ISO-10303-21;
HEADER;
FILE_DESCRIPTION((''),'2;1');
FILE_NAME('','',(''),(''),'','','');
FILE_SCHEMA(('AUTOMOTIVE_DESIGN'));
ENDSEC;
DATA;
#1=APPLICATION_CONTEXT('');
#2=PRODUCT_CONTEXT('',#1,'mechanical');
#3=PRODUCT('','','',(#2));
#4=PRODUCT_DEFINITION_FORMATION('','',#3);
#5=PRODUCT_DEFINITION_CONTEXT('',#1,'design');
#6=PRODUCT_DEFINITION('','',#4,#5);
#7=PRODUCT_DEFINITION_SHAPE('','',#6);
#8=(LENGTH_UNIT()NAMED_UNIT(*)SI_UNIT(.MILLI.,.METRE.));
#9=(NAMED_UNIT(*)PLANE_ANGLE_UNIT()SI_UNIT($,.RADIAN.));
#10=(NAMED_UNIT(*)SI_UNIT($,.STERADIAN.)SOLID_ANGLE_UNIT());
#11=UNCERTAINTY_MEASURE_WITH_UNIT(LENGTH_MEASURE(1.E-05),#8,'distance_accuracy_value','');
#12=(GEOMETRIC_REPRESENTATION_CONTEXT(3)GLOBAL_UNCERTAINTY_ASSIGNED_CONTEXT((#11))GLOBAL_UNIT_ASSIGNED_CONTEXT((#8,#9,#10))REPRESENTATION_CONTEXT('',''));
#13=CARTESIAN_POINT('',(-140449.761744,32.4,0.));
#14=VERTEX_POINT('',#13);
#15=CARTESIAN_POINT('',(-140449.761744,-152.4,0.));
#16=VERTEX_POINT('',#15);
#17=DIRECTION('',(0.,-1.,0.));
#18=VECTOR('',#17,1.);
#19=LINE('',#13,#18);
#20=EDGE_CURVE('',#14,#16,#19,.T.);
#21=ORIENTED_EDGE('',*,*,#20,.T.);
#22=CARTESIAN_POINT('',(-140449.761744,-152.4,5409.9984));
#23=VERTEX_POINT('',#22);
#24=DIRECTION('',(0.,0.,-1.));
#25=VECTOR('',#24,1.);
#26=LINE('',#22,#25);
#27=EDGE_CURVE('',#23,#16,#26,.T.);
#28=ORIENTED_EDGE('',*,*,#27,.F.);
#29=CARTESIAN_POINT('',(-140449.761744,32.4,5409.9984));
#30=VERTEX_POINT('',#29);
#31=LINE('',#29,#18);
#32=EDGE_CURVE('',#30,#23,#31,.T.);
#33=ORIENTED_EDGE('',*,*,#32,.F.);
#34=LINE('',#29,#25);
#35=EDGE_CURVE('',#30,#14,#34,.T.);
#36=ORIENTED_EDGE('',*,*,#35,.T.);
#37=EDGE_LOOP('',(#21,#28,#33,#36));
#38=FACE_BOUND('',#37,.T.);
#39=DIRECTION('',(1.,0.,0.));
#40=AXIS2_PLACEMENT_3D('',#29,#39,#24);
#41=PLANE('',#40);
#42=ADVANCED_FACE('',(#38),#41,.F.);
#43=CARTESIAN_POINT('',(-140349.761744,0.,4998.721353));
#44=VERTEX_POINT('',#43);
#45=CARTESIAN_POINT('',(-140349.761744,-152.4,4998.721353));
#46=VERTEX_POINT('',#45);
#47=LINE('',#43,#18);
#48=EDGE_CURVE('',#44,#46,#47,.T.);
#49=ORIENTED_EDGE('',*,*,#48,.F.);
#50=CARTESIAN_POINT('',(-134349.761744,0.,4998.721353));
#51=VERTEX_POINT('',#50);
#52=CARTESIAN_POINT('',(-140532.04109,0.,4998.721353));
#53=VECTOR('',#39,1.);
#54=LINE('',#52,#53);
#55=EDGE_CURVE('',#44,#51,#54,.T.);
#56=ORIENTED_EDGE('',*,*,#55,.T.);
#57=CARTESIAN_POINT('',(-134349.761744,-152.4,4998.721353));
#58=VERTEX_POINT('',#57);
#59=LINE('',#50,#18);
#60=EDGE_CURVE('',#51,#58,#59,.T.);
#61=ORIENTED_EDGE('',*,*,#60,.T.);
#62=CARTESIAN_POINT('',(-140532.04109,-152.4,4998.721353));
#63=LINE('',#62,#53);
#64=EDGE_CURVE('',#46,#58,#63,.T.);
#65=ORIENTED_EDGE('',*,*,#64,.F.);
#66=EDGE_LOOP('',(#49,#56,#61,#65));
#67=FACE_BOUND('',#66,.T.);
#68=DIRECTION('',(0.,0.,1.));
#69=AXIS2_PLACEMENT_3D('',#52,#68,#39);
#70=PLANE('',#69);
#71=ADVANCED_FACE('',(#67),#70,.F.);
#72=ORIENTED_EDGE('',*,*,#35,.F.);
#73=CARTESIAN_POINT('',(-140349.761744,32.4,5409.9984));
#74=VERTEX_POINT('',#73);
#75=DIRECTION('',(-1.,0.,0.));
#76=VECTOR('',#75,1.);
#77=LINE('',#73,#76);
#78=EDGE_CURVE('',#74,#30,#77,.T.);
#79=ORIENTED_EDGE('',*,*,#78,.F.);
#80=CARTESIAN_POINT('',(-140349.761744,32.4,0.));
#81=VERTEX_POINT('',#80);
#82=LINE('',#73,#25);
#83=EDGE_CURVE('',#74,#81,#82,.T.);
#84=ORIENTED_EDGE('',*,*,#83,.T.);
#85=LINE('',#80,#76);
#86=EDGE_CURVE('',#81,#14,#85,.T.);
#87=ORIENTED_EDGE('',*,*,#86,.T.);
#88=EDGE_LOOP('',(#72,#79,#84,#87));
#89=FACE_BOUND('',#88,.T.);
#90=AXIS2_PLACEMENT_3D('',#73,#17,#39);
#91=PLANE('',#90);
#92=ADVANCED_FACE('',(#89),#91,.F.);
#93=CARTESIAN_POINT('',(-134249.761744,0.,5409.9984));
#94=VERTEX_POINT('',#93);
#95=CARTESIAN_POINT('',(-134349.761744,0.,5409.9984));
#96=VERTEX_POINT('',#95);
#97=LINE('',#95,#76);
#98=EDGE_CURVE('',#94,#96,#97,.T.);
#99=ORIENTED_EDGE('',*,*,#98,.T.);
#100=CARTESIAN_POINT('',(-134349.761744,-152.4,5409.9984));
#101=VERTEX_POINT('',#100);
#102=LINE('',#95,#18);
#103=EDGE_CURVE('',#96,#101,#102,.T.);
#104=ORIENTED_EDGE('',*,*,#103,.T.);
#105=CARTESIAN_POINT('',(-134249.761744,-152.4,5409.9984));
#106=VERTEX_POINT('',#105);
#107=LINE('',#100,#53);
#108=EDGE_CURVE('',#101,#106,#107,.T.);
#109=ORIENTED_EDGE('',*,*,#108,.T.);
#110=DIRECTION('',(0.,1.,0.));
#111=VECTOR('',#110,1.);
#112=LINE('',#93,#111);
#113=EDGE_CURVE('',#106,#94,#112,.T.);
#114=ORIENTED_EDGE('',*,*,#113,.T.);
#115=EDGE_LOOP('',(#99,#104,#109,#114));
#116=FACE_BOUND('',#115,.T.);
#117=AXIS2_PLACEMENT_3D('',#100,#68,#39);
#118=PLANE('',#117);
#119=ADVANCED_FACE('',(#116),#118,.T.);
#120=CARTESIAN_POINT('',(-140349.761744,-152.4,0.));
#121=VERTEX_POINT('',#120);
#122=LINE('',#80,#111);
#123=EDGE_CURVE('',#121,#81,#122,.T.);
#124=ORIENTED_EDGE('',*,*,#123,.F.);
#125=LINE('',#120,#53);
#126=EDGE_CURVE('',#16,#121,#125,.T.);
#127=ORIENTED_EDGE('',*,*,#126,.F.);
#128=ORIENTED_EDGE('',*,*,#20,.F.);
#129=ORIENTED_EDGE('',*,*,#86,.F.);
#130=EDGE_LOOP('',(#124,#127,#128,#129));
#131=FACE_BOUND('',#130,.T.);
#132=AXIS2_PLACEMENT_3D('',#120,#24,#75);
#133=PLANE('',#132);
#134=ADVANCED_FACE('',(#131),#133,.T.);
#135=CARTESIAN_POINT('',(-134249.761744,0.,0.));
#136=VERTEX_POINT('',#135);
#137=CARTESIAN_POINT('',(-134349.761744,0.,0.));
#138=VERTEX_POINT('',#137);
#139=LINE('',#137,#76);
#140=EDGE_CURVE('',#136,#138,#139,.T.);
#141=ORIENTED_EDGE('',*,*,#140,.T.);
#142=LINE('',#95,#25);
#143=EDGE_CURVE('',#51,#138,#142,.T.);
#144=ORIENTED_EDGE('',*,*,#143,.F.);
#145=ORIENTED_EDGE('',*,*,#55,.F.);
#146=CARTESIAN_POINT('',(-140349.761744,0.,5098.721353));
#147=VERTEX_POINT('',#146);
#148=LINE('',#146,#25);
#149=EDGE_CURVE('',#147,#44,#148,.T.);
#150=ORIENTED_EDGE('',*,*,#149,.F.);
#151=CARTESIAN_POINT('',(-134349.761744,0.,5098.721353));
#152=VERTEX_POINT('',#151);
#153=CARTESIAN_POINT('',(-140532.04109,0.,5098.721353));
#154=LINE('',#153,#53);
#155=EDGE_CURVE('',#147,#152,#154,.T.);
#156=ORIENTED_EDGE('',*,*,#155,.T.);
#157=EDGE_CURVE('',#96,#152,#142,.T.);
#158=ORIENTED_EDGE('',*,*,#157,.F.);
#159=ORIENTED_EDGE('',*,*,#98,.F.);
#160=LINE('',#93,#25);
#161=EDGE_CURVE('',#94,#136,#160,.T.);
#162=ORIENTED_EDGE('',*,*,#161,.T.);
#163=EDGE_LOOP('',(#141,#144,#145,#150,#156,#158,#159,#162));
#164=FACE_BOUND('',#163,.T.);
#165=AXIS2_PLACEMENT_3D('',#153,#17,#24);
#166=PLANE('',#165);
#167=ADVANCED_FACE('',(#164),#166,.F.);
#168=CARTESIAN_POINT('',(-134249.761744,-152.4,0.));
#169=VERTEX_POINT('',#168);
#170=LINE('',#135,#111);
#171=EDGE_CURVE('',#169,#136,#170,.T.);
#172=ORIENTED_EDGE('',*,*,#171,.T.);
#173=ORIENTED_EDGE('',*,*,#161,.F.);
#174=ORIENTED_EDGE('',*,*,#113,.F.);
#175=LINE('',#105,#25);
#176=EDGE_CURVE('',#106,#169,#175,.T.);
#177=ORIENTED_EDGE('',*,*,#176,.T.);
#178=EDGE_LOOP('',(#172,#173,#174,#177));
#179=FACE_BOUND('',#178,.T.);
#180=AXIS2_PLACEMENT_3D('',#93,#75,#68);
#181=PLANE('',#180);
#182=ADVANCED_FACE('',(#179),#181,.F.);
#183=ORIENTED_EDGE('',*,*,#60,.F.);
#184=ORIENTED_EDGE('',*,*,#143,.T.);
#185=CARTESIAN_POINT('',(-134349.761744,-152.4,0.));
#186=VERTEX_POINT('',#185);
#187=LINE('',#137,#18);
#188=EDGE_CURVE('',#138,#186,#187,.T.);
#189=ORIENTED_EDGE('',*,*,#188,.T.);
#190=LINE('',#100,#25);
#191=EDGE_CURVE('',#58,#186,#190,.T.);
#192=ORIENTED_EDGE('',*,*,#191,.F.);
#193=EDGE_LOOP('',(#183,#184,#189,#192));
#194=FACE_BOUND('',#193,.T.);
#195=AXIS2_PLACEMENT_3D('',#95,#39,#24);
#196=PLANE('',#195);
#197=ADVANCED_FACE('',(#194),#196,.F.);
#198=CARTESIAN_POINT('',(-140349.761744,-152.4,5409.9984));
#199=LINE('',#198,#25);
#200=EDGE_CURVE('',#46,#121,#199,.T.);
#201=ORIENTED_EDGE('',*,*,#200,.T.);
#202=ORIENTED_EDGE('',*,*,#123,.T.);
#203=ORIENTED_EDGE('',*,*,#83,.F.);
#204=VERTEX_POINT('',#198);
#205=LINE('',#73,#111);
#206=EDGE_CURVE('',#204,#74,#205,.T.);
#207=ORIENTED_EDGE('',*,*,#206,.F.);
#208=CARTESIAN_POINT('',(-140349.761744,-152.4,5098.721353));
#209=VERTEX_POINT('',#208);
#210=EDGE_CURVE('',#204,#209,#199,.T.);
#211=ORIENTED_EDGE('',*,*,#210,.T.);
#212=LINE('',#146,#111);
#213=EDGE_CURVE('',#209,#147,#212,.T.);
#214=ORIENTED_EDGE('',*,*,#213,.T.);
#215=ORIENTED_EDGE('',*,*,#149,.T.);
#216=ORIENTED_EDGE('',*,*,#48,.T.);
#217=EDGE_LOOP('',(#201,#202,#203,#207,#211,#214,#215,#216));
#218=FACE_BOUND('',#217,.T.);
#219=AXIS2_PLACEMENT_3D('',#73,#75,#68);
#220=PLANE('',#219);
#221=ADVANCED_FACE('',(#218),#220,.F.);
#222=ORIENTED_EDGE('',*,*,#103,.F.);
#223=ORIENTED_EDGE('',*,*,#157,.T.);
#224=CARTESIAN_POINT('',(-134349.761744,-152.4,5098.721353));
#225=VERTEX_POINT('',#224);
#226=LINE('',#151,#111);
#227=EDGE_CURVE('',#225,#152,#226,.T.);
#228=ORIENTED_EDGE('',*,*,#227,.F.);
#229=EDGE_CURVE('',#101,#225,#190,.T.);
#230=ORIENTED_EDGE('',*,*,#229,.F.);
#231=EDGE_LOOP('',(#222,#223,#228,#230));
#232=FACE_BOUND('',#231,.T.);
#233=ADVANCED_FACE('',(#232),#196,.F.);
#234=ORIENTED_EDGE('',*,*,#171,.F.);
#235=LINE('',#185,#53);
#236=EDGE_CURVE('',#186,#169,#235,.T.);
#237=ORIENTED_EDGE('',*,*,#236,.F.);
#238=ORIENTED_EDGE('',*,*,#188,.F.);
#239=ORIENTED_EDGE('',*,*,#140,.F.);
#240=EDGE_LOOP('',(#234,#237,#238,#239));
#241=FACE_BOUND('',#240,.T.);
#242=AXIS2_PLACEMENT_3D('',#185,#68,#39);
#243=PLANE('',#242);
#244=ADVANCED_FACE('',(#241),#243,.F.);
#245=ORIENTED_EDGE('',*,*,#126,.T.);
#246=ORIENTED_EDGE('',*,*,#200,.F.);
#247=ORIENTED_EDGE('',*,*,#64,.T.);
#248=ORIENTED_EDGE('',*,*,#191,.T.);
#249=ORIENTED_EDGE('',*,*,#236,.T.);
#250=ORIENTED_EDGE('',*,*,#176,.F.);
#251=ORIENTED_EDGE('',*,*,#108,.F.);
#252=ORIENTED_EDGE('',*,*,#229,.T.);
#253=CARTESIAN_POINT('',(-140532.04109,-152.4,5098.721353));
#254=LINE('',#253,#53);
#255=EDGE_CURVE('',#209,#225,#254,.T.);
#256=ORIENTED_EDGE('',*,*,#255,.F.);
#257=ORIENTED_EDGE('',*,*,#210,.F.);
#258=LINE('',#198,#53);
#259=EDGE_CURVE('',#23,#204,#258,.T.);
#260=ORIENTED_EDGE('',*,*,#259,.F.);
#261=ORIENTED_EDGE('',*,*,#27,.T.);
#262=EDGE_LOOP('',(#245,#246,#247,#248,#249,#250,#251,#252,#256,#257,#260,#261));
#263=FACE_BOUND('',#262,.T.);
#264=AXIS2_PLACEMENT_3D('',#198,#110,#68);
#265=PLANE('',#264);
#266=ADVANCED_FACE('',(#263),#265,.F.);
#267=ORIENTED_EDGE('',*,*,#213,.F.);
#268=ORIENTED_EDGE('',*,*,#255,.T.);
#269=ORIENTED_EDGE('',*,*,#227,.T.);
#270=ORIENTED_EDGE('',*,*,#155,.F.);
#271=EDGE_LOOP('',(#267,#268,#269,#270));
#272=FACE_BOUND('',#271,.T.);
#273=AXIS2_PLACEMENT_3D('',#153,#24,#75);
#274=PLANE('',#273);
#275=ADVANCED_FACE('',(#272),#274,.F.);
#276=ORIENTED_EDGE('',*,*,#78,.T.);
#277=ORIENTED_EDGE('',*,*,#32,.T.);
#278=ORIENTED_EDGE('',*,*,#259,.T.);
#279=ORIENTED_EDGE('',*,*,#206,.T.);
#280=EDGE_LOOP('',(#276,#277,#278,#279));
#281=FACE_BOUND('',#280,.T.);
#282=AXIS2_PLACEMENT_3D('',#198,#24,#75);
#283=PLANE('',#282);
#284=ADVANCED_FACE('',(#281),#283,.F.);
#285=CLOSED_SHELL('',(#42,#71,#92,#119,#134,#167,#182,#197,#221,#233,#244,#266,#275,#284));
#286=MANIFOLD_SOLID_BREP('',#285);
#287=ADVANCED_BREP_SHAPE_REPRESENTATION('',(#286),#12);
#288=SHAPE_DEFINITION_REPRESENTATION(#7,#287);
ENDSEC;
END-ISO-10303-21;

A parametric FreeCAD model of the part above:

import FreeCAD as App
import Part
import Sketcher

V = App.Vector


def add_polygon(sketch, points):
    """Adds a closed chain of lines whose ends are joined by coincident constraints."""
    first, n = sketch.GeometryCount, len(points)
    for a, b in zip(points, points[1:] + points[:1]):
        sketch.addGeometry(Part.LineSegment(App.Vector(*a, 0), App.Vector(*b, 0)), False)
    for i in range(n):
        sketch.addConstraint(Sketcher.Constraint("Coincident", first + i, 2, first + (i + 1) % n, 1))

doc = App.newDocument("Part")
params = doc.addObject("Spreadsheet::Sheet", "Params")
for row, (alias, value) in enumerate([
    ("sketch1_width", "100 mm"),
    ("sketch1_height", "184.8 mm"),
    ("pad1_length", "5409.9984 mm"),
    ("sketch2_width", "100 mm"),
    ("sketch2_height", "152.4 mm"),
    ("pad2_length", "5409.9984 mm"),
    ("sketch3_height", "100 mm"),
    ("sketch3_width", "152.4 mm"),
    ("pad3_length", "6000 mm"),
], start=1):
    params.set(f"A{row}", alias)
    params.set(f"B{row}", "=" + value)
    params.setAlias(f"B{row}", alias)

body = doc.addObject("PartDesign::Body", "Body")

sketch1 = body.newObject("Sketcher::SketchObject", "Sketch")
sketch1.AttachmentSupport = (doc.getObject("XY_Plane"), [""])
sketch1.MapMode = "FlatFace"
add_polygon(sketch1, [(-140449.761744, 32.4), (-140449.761744, -152.4), (-140349.761744, -152.4), (-140349.761744, 32.4)])
sketch1.addConstraint(Sketcher.Constraint("Vertical", 0))
sketch1.addConstraint(Sketcher.Constraint("Horizontal", 1))
sketch1.addConstraint(Sketcher.Constraint("Vertical", 2))
sketch1.addConstraint(Sketcher.Constraint("Horizontal", 3))
sketch1.addConstraint(Sketcher.Constraint("DistanceX", 1, 1, 1, 2, 100.0))
sketch1.addConstraint(Sketcher.Constraint("DistanceY", 0, 2, 0, 1, 184.8))
sketch1.addConstraint(Sketcher.Constraint("DistanceY", 0, 2, -1, 1, 152.4))
sketch1.addConstraint(Sketcher.Constraint("DistanceX", 0, 2, -1, 1, 140449.761744))
sketch1.setExpression("Constraints[8]", "Params.sketch1_width")
sketch1.setExpression("Constraints[9]", "Params.sketch1_height")
pad1 = body.newObject("PartDesign::Pad", "Pad")
pad1.Profile = sketch1
pad1.setExpression("Length", "Params.pad1_length")
body2 = doc.addObject("PartDesign::Body", "Body001")

sketch2 = body2.newObject("Sketcher::SketchObject", "Sketch001")
sketch2.AttachmentSupport = (doc.getObject("XY_Plane001"), [""])
sketch2.MapMode = "FlatFace"
add_polygon(sketch2, [(-134349.761744, 0), (-134349.761744, -152.4), (-134249.761744, -152.4), (-134249.761744, 0)])
sketch2.addConstraint(Sketcher.Constraint("Vertical", 0))
sketch2.addConstraint(Sketcher.Constraint("Horizontal", 1))
sketch2.addConstraint(Sketcher.Constraint("Vertical", 2))
sketch2.addConstraint(Sketcher.Constraint("Horizontal", 3))
sketch2.addConstraint(Sketcher.Constraint("PointOnObject", 2, 2, -1))
sketch2.addConstraint(Sketcher.Constraint("DistanceX", 1, 1, 1, 2, 100.0))
sketch2.addConstraint(Sketcher.Constraint("DistanceY", 0, 2, 0, 1, 152.4))
sketch2.addConstraint(Sketcher.Constraint("DistanceX", 0, 2, -1, 1, 134349.761744))
sketch2.setExpression("Constraints[9]", "Params.sketch2_width")
sketch2.setExpression("Constraints[10]", "Params.sketch2_height")
pad2 = body2.newObject("PartDesign::Pad", "Pad001")
pad2.Profile = sketch2
pad2.setExpression("Length", "Params.pad2_length")
body.AllowCompound = True
doc.recompute()

boolean = body.newObject("PartDesign::Boolean", "Boolean")
boolean.Type = "Fuse"
boolean.addObjects([body2])

sketch3 = body.newObject("Sketcher::SketchObject", "Sketch002")
sketch3.AttachmentSupport = (doc.getObject("YZ_Plane"), [""])
sketch3.MapMode = "FlatFace"
sketch3.AttachmentOffset = App.Placement(V(0, 0, -134349.761744), App.Rotation())
add_polygon(sketch3, [(0, 4999), (-152, 4999), (-152, 5099), (0, 5099)])
sketch3.addConstraint(Sketcher.Constraint("Horizontal", 0))
sketch3.addConstraint(Sketcher.Constraint("Vertical", 1))
sketch3.addConstraint(Sketcher.Constraint("Horizontal", 2))
sketch3.addConstraint(Sketcher.Constraint("Vertical", 3))
sketch3.addConstraint(Sketcher.Constraint("PointOnObject", 2, 2, -2))
sketch3.addConstraint(Sketcher.Constraint("DistanceY", 1, 1, 1, 2, 100.0))
sketch3.addConstraint(Sketcher.Constraint("DistanceX", 0, 2, 0, 1, 152.4))
sketch3.addConstraint(Sketcher.Constraint("DistanceY", -1, 1, 0, 2, 4998.721353))
sketch3.setExpression("Constraints[9]", "Params.sketch3_height")
sketch3.setExpression("Constraints[10]", "Params.sketch3_width")
pad3 = body.newObject("PartDesign::Pad", "Pad002")
pad3.Profile = sketch3
pad3.setExpression("Length", "Params.pad3_length")
pad3.Reversed = True

doc.recompute()
